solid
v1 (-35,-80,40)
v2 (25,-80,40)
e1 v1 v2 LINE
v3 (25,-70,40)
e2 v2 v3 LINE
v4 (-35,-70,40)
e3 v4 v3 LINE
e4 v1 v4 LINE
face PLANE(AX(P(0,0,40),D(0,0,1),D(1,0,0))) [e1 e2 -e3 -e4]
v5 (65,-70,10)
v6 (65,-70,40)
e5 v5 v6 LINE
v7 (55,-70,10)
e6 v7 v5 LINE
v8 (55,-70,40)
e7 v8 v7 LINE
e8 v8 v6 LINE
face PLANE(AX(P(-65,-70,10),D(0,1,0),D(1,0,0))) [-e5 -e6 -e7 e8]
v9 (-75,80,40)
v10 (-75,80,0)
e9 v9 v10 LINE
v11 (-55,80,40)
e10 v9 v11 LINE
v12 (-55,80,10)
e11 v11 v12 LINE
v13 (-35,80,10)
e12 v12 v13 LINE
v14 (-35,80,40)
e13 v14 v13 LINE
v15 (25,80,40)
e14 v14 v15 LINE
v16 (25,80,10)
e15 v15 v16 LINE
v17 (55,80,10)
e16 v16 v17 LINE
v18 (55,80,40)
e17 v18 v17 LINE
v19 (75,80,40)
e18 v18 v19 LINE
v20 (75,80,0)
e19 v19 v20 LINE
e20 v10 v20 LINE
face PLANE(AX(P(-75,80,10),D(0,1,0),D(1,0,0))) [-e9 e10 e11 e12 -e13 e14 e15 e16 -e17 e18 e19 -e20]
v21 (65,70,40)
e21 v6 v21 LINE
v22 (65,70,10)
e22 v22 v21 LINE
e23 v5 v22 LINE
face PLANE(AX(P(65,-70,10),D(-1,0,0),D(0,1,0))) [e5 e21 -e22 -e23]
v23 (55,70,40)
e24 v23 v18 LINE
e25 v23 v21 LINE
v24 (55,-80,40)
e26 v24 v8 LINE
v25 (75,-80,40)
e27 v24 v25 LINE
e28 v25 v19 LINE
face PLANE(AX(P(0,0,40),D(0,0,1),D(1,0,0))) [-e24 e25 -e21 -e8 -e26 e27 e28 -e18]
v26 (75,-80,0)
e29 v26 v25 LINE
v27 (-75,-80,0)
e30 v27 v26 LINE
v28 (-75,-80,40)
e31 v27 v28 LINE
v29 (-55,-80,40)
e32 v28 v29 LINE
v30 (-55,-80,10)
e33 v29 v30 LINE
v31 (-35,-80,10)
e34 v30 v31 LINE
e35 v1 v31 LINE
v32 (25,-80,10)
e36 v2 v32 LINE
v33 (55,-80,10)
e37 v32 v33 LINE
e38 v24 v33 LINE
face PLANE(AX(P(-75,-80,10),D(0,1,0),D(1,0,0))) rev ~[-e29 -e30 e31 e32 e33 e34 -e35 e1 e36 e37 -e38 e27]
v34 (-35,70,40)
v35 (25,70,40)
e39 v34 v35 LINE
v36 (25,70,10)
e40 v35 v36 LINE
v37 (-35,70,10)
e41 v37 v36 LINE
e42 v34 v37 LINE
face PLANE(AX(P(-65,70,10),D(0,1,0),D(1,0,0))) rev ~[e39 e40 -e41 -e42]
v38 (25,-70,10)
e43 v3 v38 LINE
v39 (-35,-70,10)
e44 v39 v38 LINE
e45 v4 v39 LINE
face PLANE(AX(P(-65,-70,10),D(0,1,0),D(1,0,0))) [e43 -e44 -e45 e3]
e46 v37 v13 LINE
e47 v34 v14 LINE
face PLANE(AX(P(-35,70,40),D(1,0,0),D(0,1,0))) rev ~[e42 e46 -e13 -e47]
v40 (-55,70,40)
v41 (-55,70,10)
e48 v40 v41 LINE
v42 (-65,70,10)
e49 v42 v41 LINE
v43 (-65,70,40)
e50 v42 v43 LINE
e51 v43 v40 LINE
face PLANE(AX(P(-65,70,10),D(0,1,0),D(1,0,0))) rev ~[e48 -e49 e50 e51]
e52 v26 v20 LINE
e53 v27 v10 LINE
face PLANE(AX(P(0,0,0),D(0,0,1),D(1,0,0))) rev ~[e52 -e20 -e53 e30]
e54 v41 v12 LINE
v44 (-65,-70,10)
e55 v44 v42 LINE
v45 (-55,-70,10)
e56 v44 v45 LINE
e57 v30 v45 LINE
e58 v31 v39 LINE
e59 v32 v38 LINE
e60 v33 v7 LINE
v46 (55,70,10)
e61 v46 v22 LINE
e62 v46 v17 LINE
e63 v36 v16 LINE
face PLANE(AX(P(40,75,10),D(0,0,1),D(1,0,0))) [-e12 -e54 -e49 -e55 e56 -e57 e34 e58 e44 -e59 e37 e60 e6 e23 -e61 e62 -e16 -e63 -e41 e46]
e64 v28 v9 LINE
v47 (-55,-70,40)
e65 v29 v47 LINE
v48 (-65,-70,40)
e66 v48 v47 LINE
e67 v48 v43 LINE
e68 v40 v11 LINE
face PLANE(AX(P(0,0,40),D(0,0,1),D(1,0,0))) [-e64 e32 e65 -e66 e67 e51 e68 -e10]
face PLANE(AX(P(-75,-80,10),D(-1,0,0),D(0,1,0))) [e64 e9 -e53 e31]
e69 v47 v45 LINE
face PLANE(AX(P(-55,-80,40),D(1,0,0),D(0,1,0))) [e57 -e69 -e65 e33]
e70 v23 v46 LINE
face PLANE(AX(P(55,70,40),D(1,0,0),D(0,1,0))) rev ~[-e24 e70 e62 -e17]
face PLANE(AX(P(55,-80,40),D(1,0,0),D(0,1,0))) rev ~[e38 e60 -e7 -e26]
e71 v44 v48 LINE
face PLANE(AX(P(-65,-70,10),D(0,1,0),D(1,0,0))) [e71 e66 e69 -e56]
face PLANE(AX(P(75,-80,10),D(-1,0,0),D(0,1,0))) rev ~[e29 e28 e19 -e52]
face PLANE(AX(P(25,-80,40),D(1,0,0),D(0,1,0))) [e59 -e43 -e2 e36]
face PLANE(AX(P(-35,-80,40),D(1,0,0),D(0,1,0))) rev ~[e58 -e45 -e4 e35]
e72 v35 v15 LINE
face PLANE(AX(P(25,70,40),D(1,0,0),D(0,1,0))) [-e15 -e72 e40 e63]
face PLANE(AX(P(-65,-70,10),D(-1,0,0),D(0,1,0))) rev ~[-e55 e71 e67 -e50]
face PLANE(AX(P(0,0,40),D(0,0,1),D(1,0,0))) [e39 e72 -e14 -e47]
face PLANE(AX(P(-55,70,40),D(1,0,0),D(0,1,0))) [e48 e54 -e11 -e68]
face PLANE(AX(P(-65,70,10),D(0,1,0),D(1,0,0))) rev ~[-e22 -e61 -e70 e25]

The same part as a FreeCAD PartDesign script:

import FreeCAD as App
import Part
import Sketcher

V = App.Vector

doc = App.newDocument("Part")
body = doc.addObject("PartDesign::Body", "Body")

# Sketch on XY plane
sketch1 = body.newObject("Sketcher::SketchObject", "Sketch")
sketch1.AttachmentSupport = (doc.getObject("XY_Plane"), [""])
sketch1.MapMode = "FlatFace"
sketch1.addGeometry([
    Part.LineSegment(V(-75, 80, 0), V(-75, -80, 0)),
    Part.LineSegment(V(-75, -80, 0), V(75, -80, 0)),
    Part.LineSegment(V(75, -80, 0), V(75, 80, 0)),
    Part.LineSegment(V(75, 80, 0), V(-75, 80, 0)),
], False)
sketch1.addConstraint([
    Sketcher.Constraint("Coincident", 0, 2, 1, 1),
    Sketcher.Constraint("Coincident", 1, 2, 2, 1),
    Sketcher.Constraint("Coincident", 2, 2, 3, 1),
    Sketcher.Constraint("Coincident", 3, 2, 0, 1),
    Sketcher.Constraint("Vertical", 0),
    Sketcher.Constraint("Horizontal", 1),
    Sketcher.Constraint("Vertical", 2),
    Sketcher.Constraint("Horizontal", 3),
    Sketcher.Constraint("Symmetric", 0, 2, 2, 2, -1, 1),
    Sketcher.Constraint("DistanceX", 1, 1, 1, 2, 150.0),
    Sketcher.Constraint("DistanceY", 0, 2, 0, 1, 160.0),
])
pad1 = body.newObject("PartDesign::Pad", "Pad")
pad1.Profile = sketch1
pad1.Length = 10

# Sketch on XY plane
sketch2 = body.newObject("Sketcher::SketchObject", "Sketch001")
sketch2.AttachmentSupport = (doc.getObject("XY_Plane"), [""])
sketch2.MapMode = "FlatFace"
sketch2.AttachmentOffset = App.Placement(V(0, 0, 10), App.Rotation())
sketch2.addGeometry([
    Part.LineSegment(V(-75, 80, 0), V(-75, -80, 0)),  # 0
    Part.LineSegment(V(-75, -80, 0), V(75, -80, 0)),  # 1
    Part.LineSegment(V(75, -80, 0), V(75, 80, 0)),  # 2
    Part.LineSegment(V(75, 80, 0), V(-75, 80, 0)),  # 3
    Part.LineSegment(V(65, -70, 0), V(-65, -70, 0)),  # 4
    Part.LineSegment(V(-65, -70, 0), V(-65, 70, 0)),  # 5
    Part.LineSegment(V(-65, 70, 0), V(65, 70, 0)),  # 6
    Part.LineSegment(V(65, 70, 0), V(65, -70, 0)),  # 7
], False)
sketch2.addConstraint([
    Sketcher.Constraint("Coincident", 0, 2, 1, 1),
    Sketcher.Constraint("Coincident", 1, 2, 2, 1),
    Sketcher.Constraint("Coincident", 2, 2, 3, 1),
    Sketcher.Constraint("Coincident", 3, 2, 0, 1),
    Sketcher.Constraint("Coincident", 4, 2, 5, 1),
    Sketcher.Constraint("Coincident", 5, 2, 6, 1),
    Sketcher.Constraint("Coincident", 6, 2, 7, 1),
    Sketcher.Constraint("Coincident", 7, 2, 4, 1),
    Sketcher.Constraint("Vertical", 0),
    Sketcher.Constraint("Horizontal", 1),
    Sketcher.Constraint("Vertical", 2),
    Sketcher.Constraint("Horizontal", 3),
    Sketcher.Constraint("Horizontal", 4),
    Sketcher.Constraint("Vertical", 5),
    Sketcher.Constraint("Horizontal", 6),
    Sketcher.Constraint("Vertical", 7),
    Sketcher.Constraint("Symmetric", 0, 2, 2, 2, -1, 1),
    Sketcher.Constraint("Symmetric", 4, 2, 6, 2, -1, 1),
    Sketcher.Constraint("DistanceX", 1, 1, 1, 2, 150.0),
    Sketcher.Constraint("DistanceX", 4, 2, 4, 1, 130.0),
    Sketcher.Constraint("DistanceY", 0, 2, 0, 1, 160.0),
    Sketcher.Constraint("DistanceY", 5, 1, 5, 2, 140.0),
])
pad2 = body.newObject("PartDesign::Pad", "Pad001")
pad2.Profile = sketch2
pad2.Length = 30

# Sketch on XY plane
sketch3 = body.newObject("Sketcher::SketchObject", "Sketch002")
sketch3.AttachmentSupport = (doc.getObject("XY_Plane"), [""])
sketch3.MapMode = "FlatFace"
sketch3.AttachmentOffset = App.Placement(V(0, 0, 40), App.Rotation())
sketch3.addGeometry([
    Part.LineSegment(V(-55, 80, 0), V(-55, 70, 0)),
    Part.LineSegment(V(-55, 70, 0), V(-35, 70, 0)),
    Part.LineSegment(V(-35, 70, 0), V(-35, 80, 0)),
    Part.LineSegment(V(-35, 80, 0), V(-55, 80, 0)),
], False)
sketch3.addConstraint([
    Sketcher.Constraint("Coincident", 0, 2, 1, 1),
    Sketcher.Constraint("Coincident", 1, 2, 2, 1),
    Sketcher.Constraint("Coincident", 2, 2, 3, 1),
    Sketcher.Constraint("Coincident", 3, 2, 0, 1),
    Sketcher.Constraint("Vertical", 0),
    Sketcher.Constraint("Horizontal", 1),
    Sketcher.Constraint("Vertical", 2),
    Sketcher.Constraint("Horizontal", 3),
    Sketcher.Constraint("DistanceX", 1, 1, 1, 2, 20.0),
    Sketcher.Constraint("DistanceY", 0, 2, 0, 1, 10.0),
    Sketcher.Constraint("DistanceX", 0, 2, -1, 1, 55.0),
    Sketcher.Constraint("DistanceY", -1, 1, 0, 2, 70.0),
])
pocket1 = body.newObject("PartDesign::Pocket", "Pocket")
pocket1.Profile = sketch3
pocket1.Length = 30

# Sketch on XY plane
sketch4 = body.newObject("Sketcher::SketchObject", "Sketch003")
sketch4.AttachmentSupport = (doc.getObject("XY_Plane"), [""])
sketch4.MapMode = "FlatFace"
sketch4.AttachmentOffset = App.Placement(V(0, 0, 40), App.Rotation())
sketch4.addGeometry([
    Part.LineSegment(V(25, 80, 0), V(25, 70, 0)),
    Part.LineSegment(V(25, 70, 0), V(55, 70, 0)),
    Part.LineSegment(V(55, 70, 0), V(55, 80, 0)),
    Part.LineSegment(V(55, 80, 0), V(25, 80, 0)),
], False)
sketch4.addConstraint([
    Sketcher.Constraint("Coincident", 0, 2, 1, 1),
    Sketcher.Constraint("Coincident", 1, 2, 2, 1),
    Sketcher.Constraint("Coincident", 2, 2, 3, 1),
    Sketcher.Constraint("Coincident", 3, 2, 0, 1),
    Sketcher.Constraint("Vertical", 0),
    Sketcher.Constraint("Horizontal", 1),
    Sketcher.Constraint("Vertical", 2),
    Sketcher.Constraint("Horizontal", 3),
    Sketcher.Constraint("DistanceX", 1, 1, 1, 2, 30.0),
    Sketcher.Constraint("DistanceY", 0, 2, 0, 1, 10.0),
    Sketcher.Constraint("DistanceX", -1, 1, 0, 2, 25.0),
    Sketcher.Constraint("DistanceY", -1, 1, 0, 2, 70.0),
])
pocket2 = body.newObject("PartDesign::Pocket", "Pocket001")
pocket2.Profile = sketch4
pocket2.Length = 30

# Sketch on XY plane
sketch5 = body.newObject("Sketcher::SketchObject", "Sketch004")
sketch5.AttachmentSupport = (doc.getObject("XY_Plane"), [""])
sketch5.MapMode = "FlatFace"
sketch5.AttachmentOffset = App.Placement(V(0, 0, 40), App.Rotation())
sketch5.addGeometry([
    Part.LineSegment(V(-55, -70, 0), V(-55, -80, 0)),
    Part.LineSegment(V(-55, -80, 0), V(-35, -80, 0)),
    Part.LineSegment(V(-35, -80, 0), V(-35, -70, 0)),
    Part.LineSegment(V(-35, -70, 0), V(-55, -70, 0)),
], False)
sketch5.addConstraint([
    Sketcher.Constraint("Coincident", 0, 2, 1, 1),
    Sketcher.Constraint("Coincident", 1, 2, 2, 1),
    Sketcher.Constraint("Coincident", 2, 2, 3, 1),
    Sketcher.Constraint("Coincident", 3, 2, 0, 1),
    Sketcher.Constraint("Vertical", 0),
    Sketcher.Constraint("Horizontal", 1),
    Sketcher.Constraint("Vertical", 2),
    Sketcher.Constraint("Horizontal", 3),
    Sketcher.Constraint("DistanceX", 1, 1, 1, 2, 20.0),
    Sketcher.Constraint("DistanceY", 0, 2, 0, 1, 10.0),
    Sketcher.Constraint("DistanceX", 0, 2, -1, 1, 55.0),
    Sketcher.Constraint("DistanceY", 0, 2, -1, 1, 80.0),
])
pocket3 = body.newObject("PartDesign::Pocket", "Pocket002")
pocket3.Profile = sketch5
pocket3.Length = 30

# Sketch on XY plane
sketch6 = body.newObject("Sketcher::SketchObject", "Sketch005")
sketch6.AttachmentSupport = (doc.getObject("XY_Plane"), [""])
sketch6.MapMode = "FlatFace"
sketch6.AttachmentOffset = App.Placement(V(0, 0, 40), App.Rotation())
sketch6.addGeometry([
    Part.LineSegment(V(25, -70, 0), V(25, -80, 0)),
    Part.LineSegment(V(25, -80, 0), V(55, -80, 0)),
    Part.LineSegment(V(55, -80, 0), V(55, -70, 0)),
    Part.LineSegment(V(55, -70, 0), V(25, -70, 0)),
], False)
sketch6.addConstraint([
    Sketcher.Constraint("Coincident", 0, 2, 1, 1),
    Sketcher.Constraint("Coincident", 1, 2, 2, 1),
    Sketcher.Constraint("Coincident", 2, 2, 3, 1),
    Sketcher.Constraint("Coincident", 3, 2, 0, 1),
    Sketcher.Constraint("Vertical", 0),
    Sketcher.Constraint("Horizontal", 1),
    Sketcher.Constraint("Vertical", 2),
    Sketcher.Constraint("Horizontal", 3),
    Sketcher.Constraint("DistanceX", 1, 1, 1, 2, 30.0),
    Sketcher.Constraint("DistanceY", 0, 2, 0, 1, 10.0),
    Sketcher.Constraint("DistanceX", -1, 1, 0, 2, 25.0),
    Sketcher.Constraint("DistanceY", 0, 2, -1, 1, 80.0),
])
pocket4 = body.newObject("PartDesign::Pocket", "Pocket003")
pocket4.Profile = sketch6
pocket4.Length = 30

doc.recompute()
